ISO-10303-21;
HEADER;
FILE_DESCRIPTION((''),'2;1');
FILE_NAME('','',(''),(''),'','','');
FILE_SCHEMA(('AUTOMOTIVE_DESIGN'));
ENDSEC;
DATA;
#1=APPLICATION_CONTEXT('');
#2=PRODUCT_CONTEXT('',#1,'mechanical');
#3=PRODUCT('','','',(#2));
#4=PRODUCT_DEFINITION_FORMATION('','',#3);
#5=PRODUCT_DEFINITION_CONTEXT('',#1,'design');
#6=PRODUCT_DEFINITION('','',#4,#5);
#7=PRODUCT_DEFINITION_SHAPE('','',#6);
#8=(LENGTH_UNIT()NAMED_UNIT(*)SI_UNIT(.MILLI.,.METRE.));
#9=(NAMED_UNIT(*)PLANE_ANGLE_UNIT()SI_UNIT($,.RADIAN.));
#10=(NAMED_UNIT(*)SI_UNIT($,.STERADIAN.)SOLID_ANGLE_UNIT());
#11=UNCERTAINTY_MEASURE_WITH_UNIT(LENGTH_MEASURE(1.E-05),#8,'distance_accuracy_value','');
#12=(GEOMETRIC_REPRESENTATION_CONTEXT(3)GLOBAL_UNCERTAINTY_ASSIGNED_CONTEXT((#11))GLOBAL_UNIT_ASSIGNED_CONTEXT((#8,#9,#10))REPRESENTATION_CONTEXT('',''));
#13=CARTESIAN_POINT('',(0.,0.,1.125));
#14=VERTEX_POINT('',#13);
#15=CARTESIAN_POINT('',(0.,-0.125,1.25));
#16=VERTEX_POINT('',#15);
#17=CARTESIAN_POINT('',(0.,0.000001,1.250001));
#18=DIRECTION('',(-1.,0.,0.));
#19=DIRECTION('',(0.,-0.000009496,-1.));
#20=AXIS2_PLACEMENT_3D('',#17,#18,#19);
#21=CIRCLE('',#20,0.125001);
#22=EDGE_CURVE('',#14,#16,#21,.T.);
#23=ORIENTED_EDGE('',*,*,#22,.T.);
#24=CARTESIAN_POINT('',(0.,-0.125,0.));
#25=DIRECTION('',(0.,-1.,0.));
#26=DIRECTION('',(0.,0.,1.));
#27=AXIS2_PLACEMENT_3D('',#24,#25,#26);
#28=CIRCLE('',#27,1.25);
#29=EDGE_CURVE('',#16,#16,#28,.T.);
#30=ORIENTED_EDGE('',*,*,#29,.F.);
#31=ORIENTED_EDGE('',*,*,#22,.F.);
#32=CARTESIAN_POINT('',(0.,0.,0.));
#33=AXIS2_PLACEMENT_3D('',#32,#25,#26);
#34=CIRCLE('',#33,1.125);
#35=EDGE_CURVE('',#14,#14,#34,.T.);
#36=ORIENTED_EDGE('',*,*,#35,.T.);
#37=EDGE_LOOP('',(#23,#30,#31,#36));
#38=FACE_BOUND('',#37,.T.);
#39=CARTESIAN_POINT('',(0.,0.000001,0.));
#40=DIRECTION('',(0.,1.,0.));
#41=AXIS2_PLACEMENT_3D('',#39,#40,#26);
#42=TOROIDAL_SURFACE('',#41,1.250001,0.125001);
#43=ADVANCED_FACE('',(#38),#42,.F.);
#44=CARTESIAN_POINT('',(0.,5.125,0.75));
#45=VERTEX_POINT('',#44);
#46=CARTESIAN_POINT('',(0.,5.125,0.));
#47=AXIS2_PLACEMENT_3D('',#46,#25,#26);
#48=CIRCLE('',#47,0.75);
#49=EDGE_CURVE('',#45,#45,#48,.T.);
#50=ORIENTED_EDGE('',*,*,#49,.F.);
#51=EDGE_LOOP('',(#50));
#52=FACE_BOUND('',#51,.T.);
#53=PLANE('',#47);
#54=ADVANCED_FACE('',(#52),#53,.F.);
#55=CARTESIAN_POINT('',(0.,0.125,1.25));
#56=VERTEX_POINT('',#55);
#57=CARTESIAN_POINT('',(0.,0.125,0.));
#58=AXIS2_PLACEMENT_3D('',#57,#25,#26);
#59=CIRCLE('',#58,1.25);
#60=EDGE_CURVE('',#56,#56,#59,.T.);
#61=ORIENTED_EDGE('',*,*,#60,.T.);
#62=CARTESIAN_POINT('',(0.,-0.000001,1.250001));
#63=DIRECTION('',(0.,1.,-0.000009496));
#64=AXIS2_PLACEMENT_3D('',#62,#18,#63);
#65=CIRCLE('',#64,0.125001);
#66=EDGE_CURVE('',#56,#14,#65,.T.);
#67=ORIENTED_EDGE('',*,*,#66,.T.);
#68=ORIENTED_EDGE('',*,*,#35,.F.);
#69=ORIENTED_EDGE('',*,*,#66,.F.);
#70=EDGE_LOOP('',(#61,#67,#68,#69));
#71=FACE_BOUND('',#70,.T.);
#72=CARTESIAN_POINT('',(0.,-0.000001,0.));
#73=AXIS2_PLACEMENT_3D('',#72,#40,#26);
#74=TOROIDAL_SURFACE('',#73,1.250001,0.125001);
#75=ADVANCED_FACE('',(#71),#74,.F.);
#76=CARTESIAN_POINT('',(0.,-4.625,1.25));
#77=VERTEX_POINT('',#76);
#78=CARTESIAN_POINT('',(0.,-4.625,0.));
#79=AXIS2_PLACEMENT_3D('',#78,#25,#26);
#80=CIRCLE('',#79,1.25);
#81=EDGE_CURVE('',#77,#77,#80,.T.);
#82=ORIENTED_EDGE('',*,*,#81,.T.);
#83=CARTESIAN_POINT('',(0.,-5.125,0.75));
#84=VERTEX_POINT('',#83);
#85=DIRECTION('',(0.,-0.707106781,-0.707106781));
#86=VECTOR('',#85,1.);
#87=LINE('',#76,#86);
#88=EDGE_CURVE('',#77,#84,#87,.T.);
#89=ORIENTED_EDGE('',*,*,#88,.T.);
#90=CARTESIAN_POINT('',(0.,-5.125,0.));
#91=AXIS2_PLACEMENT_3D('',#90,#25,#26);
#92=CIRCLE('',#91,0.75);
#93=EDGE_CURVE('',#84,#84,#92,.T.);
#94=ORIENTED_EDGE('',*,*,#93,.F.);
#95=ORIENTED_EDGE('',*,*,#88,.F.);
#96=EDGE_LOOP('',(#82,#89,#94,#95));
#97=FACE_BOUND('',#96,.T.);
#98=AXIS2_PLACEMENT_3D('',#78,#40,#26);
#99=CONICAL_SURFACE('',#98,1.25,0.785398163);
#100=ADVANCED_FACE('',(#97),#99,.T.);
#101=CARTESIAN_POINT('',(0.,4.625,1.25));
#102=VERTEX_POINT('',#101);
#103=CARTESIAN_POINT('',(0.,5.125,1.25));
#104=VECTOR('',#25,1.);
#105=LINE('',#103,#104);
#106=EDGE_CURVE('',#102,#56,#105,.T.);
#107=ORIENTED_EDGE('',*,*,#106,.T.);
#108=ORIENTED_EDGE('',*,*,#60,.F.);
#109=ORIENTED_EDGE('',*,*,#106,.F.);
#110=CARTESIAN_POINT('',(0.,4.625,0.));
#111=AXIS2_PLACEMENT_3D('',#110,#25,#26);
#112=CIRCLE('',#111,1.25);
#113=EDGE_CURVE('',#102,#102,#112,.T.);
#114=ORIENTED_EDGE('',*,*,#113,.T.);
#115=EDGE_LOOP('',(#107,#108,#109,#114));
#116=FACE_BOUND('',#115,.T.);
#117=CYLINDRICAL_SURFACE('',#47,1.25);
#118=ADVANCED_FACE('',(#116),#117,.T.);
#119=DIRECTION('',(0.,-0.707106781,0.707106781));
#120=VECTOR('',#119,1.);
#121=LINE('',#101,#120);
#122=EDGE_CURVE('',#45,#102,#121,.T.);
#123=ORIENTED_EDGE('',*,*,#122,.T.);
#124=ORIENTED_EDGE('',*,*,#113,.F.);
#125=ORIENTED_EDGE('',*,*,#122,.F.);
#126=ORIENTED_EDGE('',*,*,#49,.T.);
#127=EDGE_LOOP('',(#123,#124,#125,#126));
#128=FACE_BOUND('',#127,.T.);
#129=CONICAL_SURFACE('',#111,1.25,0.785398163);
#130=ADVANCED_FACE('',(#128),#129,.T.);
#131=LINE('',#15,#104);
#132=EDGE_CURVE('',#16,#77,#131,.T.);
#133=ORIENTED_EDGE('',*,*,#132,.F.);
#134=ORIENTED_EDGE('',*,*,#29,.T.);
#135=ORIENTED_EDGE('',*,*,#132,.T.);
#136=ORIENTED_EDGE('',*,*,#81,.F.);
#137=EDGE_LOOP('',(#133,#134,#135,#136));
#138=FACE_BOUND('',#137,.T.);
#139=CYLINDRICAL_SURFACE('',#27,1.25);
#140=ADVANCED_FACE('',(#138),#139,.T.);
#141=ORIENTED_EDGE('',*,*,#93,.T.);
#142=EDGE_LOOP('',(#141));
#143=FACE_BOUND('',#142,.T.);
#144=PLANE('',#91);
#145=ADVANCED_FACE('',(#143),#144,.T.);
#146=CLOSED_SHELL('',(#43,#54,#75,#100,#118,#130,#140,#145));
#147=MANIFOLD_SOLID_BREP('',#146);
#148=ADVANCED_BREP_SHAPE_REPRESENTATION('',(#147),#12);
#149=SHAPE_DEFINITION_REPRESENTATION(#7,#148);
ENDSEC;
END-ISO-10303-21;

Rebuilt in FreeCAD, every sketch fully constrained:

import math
import FreeCAD as App
import Part
import Sketcher
from FreeCAD import Vector


def edges_at(feature, points):
    """Names of the edges that pass closest to the given points."""
    edges = feature.Shape.Edges
    near = lambda p: min(range(len(edges)), key=lambda i: edges[i].distToShape(Part.Vertex(*p))[0])
    return sorted({f"Edge{near(p) + 1}" for p in points})

doc = App.newDocument("Part")
params = doc.addObject("Spreadsheet::Sheet", "Params")
for row, (alias, value) in enumerate([
    ("sketch1_width", "5 mm"),
    ("sketch1_height", "1.25 mm"),
    ("revolution_angle", "360 deg"),
    ("chamfer_size", "0.5 mm"),
], start=1):
    params.set(f"A{row}", alias)
    params.set(f"B{row}", "=" + value)
    params.setAlias(f"B{row}", alias)

body = doc.addObject("PartDesign::Body", "Body")

sketch1 = doc.addObject("Sketcher::SketchObject", "Sketch")
body.addObject(sketch1)
sketch1.AttachmentSupport = (doc.YZ_Plane, [""])
sketch1.MapMode = "FlatFace"
sketch1.addGeometry([
    Part.LineSegment(Vector(-5.12, 0, 0), Vector(5.12, 0, 0)),
    Part.LineSegment(Vector(5.12, 0, 0), Vector(5.12, 1.25, 0)),
    Part.LineSegment(Vector(5.12, 1.25, 0), Vector(0.12, 1.25, 0)),
    Part.ArcOfCircle(Part.Circle(Vector(0, 1.25, 0), Vector(0, 0, 1), 0.13), math.radians(-90), math.radians(0)),
    Part.ArcOfCircle(Part.Circle(Vector(0, 1.25, 0), Vector(0, 0, 1), 0.13), math.radians(-180), math.radians(-90)),
    Part.LineSegment(Vector(-0.12, 1.25, 0), Vector(-5.12, 1.25, 0)),
    Part.LineSegment(Vector(-5.12, 1.25, 0), Vector(-5.12, 0, 0)),
], False)
sketch1.addConstraint([
    Sketcher.Constraint("Coincident", 0, 2, 1, 1),
    Sketcher.Constraint("Coincident", 1, 2, 2, 1),
    Sketcher.Constraint("Coincident", 2, 2, 3, 2),
    Sketcher.Constraint("Coincident", 3, 1, 4, 2),
    Sketcher.Constraint("Coincident", 4, 1, 5, 1),
    Sketcher.Constraint("Coincident", 5, 2, 6, 1),
    Sketcher.Constraint("Coincident", 6, 2, 0, 1),
    Sketcher.Constraint("Horizontal", 0),
    Sketcher.Constraint("Vertical", 1),
    Sketcher.Constraint("Horizontal", 2),
    Sketcher.Constraint("Horizontal", 5),
    Sketcher.Constraint("Vertical", 6),
    Sketcher.Constraint("Coincident", 4, 3, 3, 3),
    Sketcher.Constraint("Symmetric", 0, 2, 6, 2, -1, 1),
    Sketcher.Constraint("Symmetric", 2, 2, 4, 1, -2),
    Sketcher.Constraint("PointOnObject", 3, 1, -2),
    Sketcher.Constraint("Horizontal", 4, 3, 1, 2),
    Sketcher.Constraint("DistanceX", 2, 2, 2, 1, 5.0),
    Sketcher.Constraint("Radius", 3, 0.125001),
    Sketcher.Constraint("DistanceY", 1, 1, 1, 2, 1.25),
])
sketch1.setExpression("Constraints[17]", "Params.sketch1_width")
sketch1.setExpression("Constraints[19]", "Params.sketch1_height")
revolution = doc.addObject("PartDesign::Revolution", "Revolution")
body.addObject(revolution)
revolution.Profile = sketch1
revolution.ReferenceAxis = (sketch1, ["H_Axis"])
revolution.setExpression("Angle", "Params.revolution_angle")
doc.recompute()

chamfer = doc.addObject("PartDesign::Chamfer", "Chamfer")
body.addObject(chamfer)
chamfer.Base = (revolution, edges_at(revolution, [(0, -5.125, -1.25), (0, 5.125, -1.25)]))
chamfer.setExpression("Size", "Params.chamfer_size")

doc.recompute()
